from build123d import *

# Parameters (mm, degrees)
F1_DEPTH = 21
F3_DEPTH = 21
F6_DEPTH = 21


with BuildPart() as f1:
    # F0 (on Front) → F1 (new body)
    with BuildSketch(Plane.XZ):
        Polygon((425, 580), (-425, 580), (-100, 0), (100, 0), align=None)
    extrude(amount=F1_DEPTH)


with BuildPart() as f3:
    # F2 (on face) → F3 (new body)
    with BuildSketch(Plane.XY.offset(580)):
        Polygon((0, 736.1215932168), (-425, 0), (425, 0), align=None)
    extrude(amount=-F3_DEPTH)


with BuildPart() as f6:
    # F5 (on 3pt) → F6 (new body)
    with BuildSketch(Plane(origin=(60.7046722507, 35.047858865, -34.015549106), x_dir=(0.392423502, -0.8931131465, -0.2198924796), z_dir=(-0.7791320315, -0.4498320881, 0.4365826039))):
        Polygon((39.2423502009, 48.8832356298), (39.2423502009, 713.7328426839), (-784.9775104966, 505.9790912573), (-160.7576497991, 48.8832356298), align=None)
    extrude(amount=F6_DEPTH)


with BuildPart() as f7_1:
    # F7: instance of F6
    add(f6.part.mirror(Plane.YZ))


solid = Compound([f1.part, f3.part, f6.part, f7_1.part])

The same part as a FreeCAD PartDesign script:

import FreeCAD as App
import Part
import Sketcher
Q = App.Units.Quantity


def add_polygon(sketch, points):
    """Adds a closed chain of lines whose ends are joined by coincident constraints."""
    first, n = sketch.GeometryCount, len(points)
    for a, b in zip(points, points[1:] + points[:1]):
        sketch.addGeometry(Part.LineSegment(App.Vector(*a, 0), App.Vector(*b, 0)), False)
    for i in range(n):
        sketch.addConstraint(Sketcher.Constraint("Coincident", first + i, 2, first + (i + 1) % n, 1))

doc = App.newDocument("Part")
params = doc.addObject("Spreadsheet::Sheet", "Params")
for row, (alias, value) in enumerate([
    ("sketch1_width", "850 mm"),
    ("sketch1_width2", "200 mm"),
    ("pad1_length", "21 mm"),
    ("sketch2_width", "850 mm"),
    ("pad2_length", "21 mm"),
    ("sketch3_width", "200 mm"),
    ("sketch3_length", "850.000001 mm"),
    ("pad3_length", "21 mm"),
], start=1):
    params.set(f"A{row}", alias)
    params.set(f"B{row}", "=" + value)
    params.setAlias(f"B{row}", alias)

body = doc.addObject("PartDesign::Body", "Body")

# Sketch on XZ plane
sketch1 = doc.addObject("Sketcher::SketchObject", "Sketch")
body.addObject(sketch1)
sketch1.AttachmentSupport = (doc.XZ_Plane, [""])
sketch1.MapMode = "FlatFace"
add_polygon(sketch1, [(425, 580), (-425, 580), (-100, 0), (100, 0)])  # lines 0-3
sketch1.addConstraint(Sketcher.Constraint("Horizontal", 0))
sketch1.addConstraint(Sketcher.Constraint("Horizontal", 2))
sketch1.addConstraint(Sketcher.Constraint("Symmetric", 1, 2, 2, 2, -1, 1))
sketch1.addConstraint(Sketcher.Constraint("Equal", 1, 3))
sketch1.addConstraint(Sketcher.Constraint("DistanceX", 0, 2, 0, 1, Q("850 mm")))
sketch1.addConstraint(Sketcher.Constraint("DistanceX", 2, 1, 2, 2, Q("200 mm")))
sketch1.addConstraint(Sketcher.Constraint("DistanceY", -1, 1, 0, 2, Q("580 mm")))
sketch1.setExpression("Constraints[8]", "Params.sketch1_width")
sketch1.setExpression("Constraints[9]", "Params.sketch1_width2")
pad1 = doc.addObject("PartDesign::Pad", "Pad")
body.addObject(pad1)
pad1.Profile = sketch1
pad1.setExpression("Length", "Params.pad1_length")
body2 = doc.addObject("PartDesign::Body", "Body001")

# Sketch on XY plane
sketch2 = doc.addObject("Sketcher::SketchObject", "Sketch001")
body2.addObject(sketch2)
sketch2.AttachmentSupport = (doc.getObject("XY_Plane001"), [""])
sketch2.MapMode = "FlatFace"
sketch2.AttachmentOffset = App.Placement(App.Vector(0, 0, 580), App.Rotation())
add_polygon(sketch2, [(0, 736), (-425, 0), (425, 0)])  # lines 0-2
sketch2.addConstraint(Sketcher.Constraint("Horizontal", 1))
sketch2.addConstraint(Sketcher.Constraint("Symmetric", 0, 2, 1, 2, -1, 1))
sketch2.addConstraint(Sketcher.Constraint("PointOnObject", 2, 2, -2))
sketch2.addConstraint(Sketcher.Constraint("DistanceX", 1, 1, 1, 2, Q("850 mm")))
sketch2.addConstraint(Sketcher.Constraint("Angle", 0, Q("-120 deg")))
sketch2.setExpression("Constraints[6]", "Params.sketch2_width")
pad2 = doc.addObject("PartDesign::Pad", "Pad001")
body2.addObject(pad2)
pad2.Profile = sketch2
pad2.setExpression("Length", "Params.pad2_length")
pad2.Reversed = True
body3 = doc.addObject("PartDesign::Body", "Body002")

# Sketch on an angled plane
sketch3 = doc.addObject("Sketcher::SketchObject", "Sketch002")
body3.addObject(sketch3)
sketch3.Placement = App.Placement(App.Vector(60.704672, 35.047859, -34.015549), App.Rotation(App.Vector(0.392423502, -0.893113147, -0.21989248), App.Vector(0.488832357, 0, 0.872377743), App.Vector(-0.779132031, -0.449832088, 0.436582604), "ZXY"))
add_polygon(sketch3, [(39, 49), (39, 714), (-785, 506), (-161, 49)])  # lines 0-3
sketch3.addConstraint(Sketcher.Constraint("Vertical", 0))
sketch3.addConstraint(Sketcher.Constraint("Horizontal", 3))
sketch3.addConstraint(Sketcher.Constraint("DistanceX", 3, 1, 3, 2, Q("200 mm")))
sketch3.addConstraint(Sketcher.Constraint("Distance", 1, Q("850.000001 mm")))
sketch3.addConstraint(Sketcher.Constraint("Distance", 2, Q("773.684081 mm")))
sketch3.addConstraint(Sketcher.Constraint("DistanceY", 0, 1, 0, 2, Q("664.849607 mm")))
sketch3.addConstraint(Sketcher.Constraint("DistanceX", -1, 1, 0, 2, Q("39.24235 mm")))
sketch3.addConstraint(Sketcher.Constraint("DistanceY", -1, 1, 1, 2, Q("505.979091 mm")))
sketch3.setExpression("Constraints[6]", "Params.sketch3_width")
sketch3.setExpression("Constraints[7]", "Params.sketch3_length")
pad3 = doc.addObject("PartDesign::Pad", "Pad002")
body3.addObject(pad3)
pad3.Profile = sketch3
pad3.setExpression("Length", "Params.pad3_length")
body4 = doc.addObject("PartDesign::Body", "Body003")
doc.recompute()

mirroring = doc.addObject("Part::Mirroring", "Mirroring")
mirroring.Source = body3
mirroring.Base = App.Vector(0, 0, 0)
mirroring.Normal = App.Vector(1, 0, 0)
body4.BaseFeature = mirroring
doc.recompute()
mirroring.Visibility = False

doc.recompute()
